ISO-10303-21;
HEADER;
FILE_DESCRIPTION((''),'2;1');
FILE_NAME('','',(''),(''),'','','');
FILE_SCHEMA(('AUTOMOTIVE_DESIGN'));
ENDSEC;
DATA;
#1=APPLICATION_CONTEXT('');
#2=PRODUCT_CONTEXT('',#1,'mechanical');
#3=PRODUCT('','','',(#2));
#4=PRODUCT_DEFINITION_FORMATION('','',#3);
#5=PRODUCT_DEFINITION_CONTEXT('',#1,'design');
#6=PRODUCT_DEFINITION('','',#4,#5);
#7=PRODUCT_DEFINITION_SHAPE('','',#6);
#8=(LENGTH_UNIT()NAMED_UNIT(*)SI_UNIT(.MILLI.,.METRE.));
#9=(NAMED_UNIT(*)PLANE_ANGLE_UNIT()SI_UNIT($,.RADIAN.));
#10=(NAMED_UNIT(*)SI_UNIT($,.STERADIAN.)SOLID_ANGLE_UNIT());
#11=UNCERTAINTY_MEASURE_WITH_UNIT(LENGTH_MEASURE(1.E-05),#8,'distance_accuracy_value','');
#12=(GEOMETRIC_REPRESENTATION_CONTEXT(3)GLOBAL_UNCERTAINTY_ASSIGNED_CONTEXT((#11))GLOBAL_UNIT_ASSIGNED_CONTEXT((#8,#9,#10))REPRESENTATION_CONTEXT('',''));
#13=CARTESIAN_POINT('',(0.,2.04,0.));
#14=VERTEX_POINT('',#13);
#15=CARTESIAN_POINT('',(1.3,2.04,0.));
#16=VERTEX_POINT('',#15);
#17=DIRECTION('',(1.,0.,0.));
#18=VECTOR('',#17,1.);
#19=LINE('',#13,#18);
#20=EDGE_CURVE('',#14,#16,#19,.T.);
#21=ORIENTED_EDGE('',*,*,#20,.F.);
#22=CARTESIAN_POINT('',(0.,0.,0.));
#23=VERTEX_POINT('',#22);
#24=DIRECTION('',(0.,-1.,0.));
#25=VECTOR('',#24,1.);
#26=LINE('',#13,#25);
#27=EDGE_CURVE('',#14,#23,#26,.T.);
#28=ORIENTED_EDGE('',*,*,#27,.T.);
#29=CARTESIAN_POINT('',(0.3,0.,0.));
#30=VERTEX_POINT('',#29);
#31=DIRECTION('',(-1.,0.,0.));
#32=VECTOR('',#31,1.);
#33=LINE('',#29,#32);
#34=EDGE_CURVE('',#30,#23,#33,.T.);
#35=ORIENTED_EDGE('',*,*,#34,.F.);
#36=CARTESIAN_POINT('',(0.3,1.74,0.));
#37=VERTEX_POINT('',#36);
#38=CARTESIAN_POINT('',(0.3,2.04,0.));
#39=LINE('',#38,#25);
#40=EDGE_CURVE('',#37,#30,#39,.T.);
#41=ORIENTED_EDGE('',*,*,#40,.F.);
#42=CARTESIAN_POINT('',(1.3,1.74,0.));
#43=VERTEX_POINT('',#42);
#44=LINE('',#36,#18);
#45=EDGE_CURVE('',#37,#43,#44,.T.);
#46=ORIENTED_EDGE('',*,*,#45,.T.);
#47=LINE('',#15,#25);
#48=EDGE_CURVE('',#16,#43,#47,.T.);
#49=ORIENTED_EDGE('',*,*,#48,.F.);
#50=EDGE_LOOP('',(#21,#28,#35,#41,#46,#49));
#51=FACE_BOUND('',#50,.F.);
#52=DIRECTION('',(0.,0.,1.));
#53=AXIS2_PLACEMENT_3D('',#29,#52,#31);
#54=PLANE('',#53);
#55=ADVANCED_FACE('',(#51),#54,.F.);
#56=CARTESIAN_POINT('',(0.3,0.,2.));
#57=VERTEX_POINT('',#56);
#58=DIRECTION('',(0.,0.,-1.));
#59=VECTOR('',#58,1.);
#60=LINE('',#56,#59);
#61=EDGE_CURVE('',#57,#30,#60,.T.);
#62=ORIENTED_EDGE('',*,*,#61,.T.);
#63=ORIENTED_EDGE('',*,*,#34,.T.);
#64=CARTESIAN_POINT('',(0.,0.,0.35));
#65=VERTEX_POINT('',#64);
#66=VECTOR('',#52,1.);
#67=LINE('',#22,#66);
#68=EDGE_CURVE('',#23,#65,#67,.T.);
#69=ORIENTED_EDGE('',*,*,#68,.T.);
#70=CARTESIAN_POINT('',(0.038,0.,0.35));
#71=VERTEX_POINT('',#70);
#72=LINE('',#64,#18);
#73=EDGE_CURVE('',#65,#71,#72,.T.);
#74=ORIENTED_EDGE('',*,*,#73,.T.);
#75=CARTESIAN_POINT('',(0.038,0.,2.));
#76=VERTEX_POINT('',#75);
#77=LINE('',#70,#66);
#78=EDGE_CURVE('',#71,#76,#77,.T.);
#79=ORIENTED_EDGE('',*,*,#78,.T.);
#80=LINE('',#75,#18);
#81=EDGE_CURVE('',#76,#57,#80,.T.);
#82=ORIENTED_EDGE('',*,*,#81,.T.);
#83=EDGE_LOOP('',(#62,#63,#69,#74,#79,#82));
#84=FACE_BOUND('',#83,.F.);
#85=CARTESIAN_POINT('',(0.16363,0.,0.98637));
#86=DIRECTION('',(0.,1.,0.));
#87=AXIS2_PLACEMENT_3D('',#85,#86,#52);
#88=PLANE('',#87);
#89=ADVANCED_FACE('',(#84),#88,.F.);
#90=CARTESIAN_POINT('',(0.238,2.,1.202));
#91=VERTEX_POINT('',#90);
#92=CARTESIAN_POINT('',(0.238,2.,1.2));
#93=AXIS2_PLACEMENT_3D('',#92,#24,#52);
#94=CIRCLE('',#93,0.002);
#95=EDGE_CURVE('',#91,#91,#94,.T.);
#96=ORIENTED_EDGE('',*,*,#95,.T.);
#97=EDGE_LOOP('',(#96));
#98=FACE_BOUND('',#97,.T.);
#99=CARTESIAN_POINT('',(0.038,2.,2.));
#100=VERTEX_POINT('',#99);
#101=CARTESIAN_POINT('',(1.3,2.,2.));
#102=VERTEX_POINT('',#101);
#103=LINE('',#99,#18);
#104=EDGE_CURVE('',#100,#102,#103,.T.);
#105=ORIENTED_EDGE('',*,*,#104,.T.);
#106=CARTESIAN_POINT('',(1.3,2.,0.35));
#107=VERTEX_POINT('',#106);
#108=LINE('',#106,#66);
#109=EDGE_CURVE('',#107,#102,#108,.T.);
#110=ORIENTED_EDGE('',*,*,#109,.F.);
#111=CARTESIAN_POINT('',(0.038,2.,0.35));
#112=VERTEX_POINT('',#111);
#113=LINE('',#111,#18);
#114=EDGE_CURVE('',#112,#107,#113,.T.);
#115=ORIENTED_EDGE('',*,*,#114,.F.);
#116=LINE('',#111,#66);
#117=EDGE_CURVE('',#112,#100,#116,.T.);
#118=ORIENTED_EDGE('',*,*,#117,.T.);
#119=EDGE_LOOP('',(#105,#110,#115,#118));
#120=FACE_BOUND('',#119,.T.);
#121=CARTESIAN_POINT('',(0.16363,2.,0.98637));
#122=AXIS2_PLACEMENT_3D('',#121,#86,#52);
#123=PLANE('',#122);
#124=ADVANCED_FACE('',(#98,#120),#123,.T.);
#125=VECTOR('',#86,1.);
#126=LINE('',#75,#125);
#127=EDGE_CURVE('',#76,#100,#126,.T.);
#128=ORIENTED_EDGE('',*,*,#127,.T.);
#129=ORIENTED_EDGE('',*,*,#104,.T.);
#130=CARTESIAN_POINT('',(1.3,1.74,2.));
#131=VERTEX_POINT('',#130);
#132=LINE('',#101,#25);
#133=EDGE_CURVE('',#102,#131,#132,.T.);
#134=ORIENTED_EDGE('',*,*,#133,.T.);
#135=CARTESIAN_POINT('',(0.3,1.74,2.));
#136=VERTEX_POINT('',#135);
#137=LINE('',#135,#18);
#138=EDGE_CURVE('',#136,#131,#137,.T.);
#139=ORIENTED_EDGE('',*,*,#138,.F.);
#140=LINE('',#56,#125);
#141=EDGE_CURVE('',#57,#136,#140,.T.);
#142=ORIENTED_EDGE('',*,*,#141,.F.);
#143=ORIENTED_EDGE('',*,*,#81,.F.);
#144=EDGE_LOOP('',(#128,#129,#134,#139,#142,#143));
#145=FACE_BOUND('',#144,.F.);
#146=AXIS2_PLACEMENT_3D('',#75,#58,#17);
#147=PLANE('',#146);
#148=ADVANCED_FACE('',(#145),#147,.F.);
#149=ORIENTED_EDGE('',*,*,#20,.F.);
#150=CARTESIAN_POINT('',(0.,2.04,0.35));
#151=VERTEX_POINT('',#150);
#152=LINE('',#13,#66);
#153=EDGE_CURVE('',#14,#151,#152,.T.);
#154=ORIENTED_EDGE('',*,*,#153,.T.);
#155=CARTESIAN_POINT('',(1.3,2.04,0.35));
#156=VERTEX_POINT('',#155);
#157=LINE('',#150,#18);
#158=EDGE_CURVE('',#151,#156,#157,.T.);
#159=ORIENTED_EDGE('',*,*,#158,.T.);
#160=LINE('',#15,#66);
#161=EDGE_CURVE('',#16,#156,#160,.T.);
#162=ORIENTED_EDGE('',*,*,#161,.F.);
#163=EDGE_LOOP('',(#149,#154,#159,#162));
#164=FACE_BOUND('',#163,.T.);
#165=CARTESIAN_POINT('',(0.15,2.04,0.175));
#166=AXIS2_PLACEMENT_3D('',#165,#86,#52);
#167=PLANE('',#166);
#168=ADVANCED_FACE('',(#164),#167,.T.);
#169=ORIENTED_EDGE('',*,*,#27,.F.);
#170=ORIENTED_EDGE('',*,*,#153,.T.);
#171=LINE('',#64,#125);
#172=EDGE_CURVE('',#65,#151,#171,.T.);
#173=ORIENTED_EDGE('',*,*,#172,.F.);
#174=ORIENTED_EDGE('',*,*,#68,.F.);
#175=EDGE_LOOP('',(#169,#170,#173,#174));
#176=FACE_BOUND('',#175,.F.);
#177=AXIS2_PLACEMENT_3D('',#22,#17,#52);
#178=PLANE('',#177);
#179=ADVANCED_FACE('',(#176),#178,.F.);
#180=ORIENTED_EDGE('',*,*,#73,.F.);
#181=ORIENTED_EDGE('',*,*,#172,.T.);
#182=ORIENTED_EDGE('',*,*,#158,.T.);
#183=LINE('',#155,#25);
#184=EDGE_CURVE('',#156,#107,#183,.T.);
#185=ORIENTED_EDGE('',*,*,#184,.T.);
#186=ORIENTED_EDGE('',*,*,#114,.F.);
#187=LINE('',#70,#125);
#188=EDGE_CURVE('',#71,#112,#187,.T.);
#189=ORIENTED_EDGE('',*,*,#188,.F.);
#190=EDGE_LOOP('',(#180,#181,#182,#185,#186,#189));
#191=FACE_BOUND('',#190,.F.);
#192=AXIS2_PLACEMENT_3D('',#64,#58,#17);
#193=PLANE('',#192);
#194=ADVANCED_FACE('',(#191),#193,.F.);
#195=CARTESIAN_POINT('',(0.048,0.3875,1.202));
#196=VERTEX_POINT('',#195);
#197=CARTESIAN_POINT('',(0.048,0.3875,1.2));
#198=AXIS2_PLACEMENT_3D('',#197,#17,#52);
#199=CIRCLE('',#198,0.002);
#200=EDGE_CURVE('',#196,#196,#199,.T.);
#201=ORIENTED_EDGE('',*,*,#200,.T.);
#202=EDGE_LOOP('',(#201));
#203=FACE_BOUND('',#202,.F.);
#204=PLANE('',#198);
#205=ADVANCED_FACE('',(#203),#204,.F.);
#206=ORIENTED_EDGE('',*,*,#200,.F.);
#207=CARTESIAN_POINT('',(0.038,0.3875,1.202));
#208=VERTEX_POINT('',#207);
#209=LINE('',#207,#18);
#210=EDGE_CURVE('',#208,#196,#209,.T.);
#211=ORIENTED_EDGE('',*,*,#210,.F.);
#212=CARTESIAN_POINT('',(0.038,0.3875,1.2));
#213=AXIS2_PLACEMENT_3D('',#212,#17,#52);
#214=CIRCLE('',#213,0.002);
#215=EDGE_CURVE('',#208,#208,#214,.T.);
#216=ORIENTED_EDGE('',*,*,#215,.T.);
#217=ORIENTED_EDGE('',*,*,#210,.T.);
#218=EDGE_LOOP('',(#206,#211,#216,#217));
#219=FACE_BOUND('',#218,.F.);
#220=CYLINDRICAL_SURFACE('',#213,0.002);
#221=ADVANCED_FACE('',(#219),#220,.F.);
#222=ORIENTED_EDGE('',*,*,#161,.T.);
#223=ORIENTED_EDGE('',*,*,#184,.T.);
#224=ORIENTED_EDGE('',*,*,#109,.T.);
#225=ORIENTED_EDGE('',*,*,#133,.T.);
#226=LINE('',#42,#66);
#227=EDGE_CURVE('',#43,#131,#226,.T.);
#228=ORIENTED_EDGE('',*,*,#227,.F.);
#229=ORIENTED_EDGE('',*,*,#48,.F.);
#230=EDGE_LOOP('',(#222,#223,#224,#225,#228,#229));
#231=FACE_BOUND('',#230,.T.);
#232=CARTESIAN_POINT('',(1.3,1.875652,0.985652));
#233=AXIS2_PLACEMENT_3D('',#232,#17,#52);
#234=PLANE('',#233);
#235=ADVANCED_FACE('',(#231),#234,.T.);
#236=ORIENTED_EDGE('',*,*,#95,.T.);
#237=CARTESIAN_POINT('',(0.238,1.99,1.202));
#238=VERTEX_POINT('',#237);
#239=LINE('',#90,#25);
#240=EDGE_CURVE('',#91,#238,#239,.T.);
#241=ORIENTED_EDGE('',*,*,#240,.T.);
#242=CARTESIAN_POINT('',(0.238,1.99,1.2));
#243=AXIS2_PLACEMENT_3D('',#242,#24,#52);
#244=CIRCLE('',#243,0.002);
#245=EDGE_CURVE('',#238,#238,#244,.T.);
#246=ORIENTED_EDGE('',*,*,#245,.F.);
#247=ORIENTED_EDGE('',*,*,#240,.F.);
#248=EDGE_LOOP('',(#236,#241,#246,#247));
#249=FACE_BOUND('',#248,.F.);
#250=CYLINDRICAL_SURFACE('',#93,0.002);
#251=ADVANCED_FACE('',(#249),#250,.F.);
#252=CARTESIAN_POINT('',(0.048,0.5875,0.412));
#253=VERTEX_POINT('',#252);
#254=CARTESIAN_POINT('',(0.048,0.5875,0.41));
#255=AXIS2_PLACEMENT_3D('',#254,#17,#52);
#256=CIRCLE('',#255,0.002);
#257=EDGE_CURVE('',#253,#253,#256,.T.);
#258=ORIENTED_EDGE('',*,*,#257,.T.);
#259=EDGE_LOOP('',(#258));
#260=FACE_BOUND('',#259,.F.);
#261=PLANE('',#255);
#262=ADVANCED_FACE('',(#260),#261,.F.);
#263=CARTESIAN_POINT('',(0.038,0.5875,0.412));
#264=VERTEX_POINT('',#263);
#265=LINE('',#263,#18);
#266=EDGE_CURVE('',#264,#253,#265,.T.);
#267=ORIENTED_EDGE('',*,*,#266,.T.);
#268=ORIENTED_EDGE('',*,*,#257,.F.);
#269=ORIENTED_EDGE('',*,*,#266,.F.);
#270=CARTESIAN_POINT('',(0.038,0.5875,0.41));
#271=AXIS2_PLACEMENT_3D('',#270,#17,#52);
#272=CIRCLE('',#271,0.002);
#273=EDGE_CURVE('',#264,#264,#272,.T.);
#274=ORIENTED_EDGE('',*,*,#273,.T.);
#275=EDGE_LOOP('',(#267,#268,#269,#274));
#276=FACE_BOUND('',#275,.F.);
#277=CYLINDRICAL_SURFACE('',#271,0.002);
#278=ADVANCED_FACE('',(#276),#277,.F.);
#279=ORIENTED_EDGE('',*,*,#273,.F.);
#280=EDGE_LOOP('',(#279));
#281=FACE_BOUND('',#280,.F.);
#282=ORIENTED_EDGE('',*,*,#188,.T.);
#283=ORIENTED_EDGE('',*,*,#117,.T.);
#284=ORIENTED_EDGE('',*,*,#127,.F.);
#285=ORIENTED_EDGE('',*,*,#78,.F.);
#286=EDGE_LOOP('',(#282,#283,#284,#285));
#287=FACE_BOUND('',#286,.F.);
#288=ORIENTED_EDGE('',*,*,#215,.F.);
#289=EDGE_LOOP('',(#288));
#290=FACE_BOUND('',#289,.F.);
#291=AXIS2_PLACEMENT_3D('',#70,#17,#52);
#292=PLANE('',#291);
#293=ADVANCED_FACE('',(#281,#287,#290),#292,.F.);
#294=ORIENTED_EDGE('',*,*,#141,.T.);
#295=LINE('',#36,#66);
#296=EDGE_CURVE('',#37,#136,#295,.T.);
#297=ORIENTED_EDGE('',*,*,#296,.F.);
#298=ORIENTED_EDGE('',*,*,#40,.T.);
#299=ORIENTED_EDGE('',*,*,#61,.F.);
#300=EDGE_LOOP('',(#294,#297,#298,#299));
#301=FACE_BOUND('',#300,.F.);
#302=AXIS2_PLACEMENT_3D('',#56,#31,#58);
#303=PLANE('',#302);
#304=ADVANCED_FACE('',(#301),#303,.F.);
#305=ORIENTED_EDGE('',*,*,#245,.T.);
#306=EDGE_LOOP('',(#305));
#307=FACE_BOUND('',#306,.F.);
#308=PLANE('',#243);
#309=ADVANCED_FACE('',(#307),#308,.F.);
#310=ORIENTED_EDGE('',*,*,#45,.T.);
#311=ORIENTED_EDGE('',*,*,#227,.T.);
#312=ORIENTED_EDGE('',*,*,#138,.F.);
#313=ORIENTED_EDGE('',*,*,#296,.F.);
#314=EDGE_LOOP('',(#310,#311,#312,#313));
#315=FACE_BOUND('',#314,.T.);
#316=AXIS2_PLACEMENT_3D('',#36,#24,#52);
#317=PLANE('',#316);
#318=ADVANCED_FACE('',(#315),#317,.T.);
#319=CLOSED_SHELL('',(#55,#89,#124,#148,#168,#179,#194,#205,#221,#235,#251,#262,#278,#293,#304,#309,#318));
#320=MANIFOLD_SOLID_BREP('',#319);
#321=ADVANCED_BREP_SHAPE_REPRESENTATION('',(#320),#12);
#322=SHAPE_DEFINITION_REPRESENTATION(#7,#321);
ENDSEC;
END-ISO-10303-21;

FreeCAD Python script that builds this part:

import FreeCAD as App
import Part
import Sketcher
from FreeCAD import Vector
Q = App.Units.Quantity


def add_polygon(sketch, points):
    """Adds a closed chain of lines whose ends are joined by coincident constraints."""
    first, n = sketch.GeometryCount, len(points)
    for a, b in zip(points, points[1:] + points[:1]):
        sketch.addGeometry(Part.LineSegment(App.Vector(*a, 0), App.Vector(*b, 0)), False)
    for i in range(n):
        sketch.addConstraint(Sketcher.Constraint("Coincident", first + i, 2, first + (i + 1) % n, 1))

doc = App.newDocument("Part")
params = doc.addObject("Spreadsheet::Sheet", "Params")
for row, (alias, value) in enumerate([
    ("sketch1_width", "0.3 mm"),
    ("sketch1_height", "2 mm"),
    ("sketch1_height2", "0.35 mm"),
    ("pad1_length", "2 mm"),
    ("hole_diameter", "0.004 mm"),
    ("hole_depth", "0.01 mm"),
    ("hole2_diameter", "0.004 mm"),
    ("hole2_depth", "0.01 mm"),
    ("hole3_diameter", "0.004 mm"),
    ("hole3_depth", "0.01 mm"),
    ("sketch5_width", "0.3 mm"),
    ("sketch5_height", "0.35 mm"),
    ("pad2_length", "0.04 mm"),
    ("sketch6_height", "2 mm"),
    ("sketch6_width", "0.3 mm"),
    ("sketch6_width2", "0.04 mm"),
    ("sketch6_height2", "0.35 mm"),
    ("pad3_length", "1 mm"),
], start=1):
    params.set(f"A{row}", alias)
    params.set(f"B{row}", "=" + value)
    params.setAlias(f"B{row}", alias)

body = doc.addObject("PartDesign::Body", "Body")

sketch1 = doc.addObject("Sketcher::SketchObject", "Sketch")
body.addObject(sketch1)
sketch1.AttachmentSupport = (doc.XZ_Plane, [""])
sketch1.MapMode = "FlatFace"
add_polygon(sketch1, [(0, 0.35), (0, 0), (0.3, 0), (0.3, 2), (0.038, 2), (0.038, 0.35)])
sketch1.addConstraint([
    Sketcher.Constraint("Vertical", 0),
    Sketcher.Constraint("Horizontal", 1),
    Sketcher.Constraint("Vertical", 2),
    Sketcher.Constraint("Horizontal", 3),
    Sketcher.Constraint("Vertical", 4),
    Sketcher.Constraint("Horizontal", 5),
    Sketcher.Constraint("Coincident", 0, 2, -1, 1),
    Sketcher.Constraint("DistanceX", 1, 1, 1, 2, Q("0.3 mm")),
    Sketcher.Constraint("DistanceY", 2, 1, 2, 2, Q("2 mm")),
    Sketcher.Constraint("DistanceY", 0, 2, 0, 1, Q("0.35 mm")),
    Sketcher.Constraint("DistanceX", 3, 2, 3, 1, Q("0.262 mm")),
])
sketch1.setExpression("Constraints[13]", "Params.sketch1_width")
sketch1.setExpression("Constraints[14]", "Params.sketch1_height")
sketch1.setExpression("Constraints[15]", "Params.sketch1_height2")
pad1 = doc.addObject("PartDesign::Pad", "Pad")
body.addObject(pad1)
pad1.Profile = sketch1
pad1.setExpression("Length", "Params.pad1_length")
pad1.Reversed = True

sketch2 = doc.addObject("Sketcher::SketchObject", "Sketch001")
body.addObject(sketch2)
sketch2.AttachmentSupport = (doc.YZ_Plane, [""])
sketch2.MapMode = "FlatFace"
sketch2.AttachmentOffset = App.Placement(Vector(0, 0, 0.038), App.Rotation())
sketch2.addGeometry(Part.Circle(Vector(0.5875, 0.41, 0), Vector(0, 0, 1), 0.002), False)
sketch2.addConstraint([
    Sketcher.Constraint("Diameter", 0, Q("0.004 mm")),
    Sketcher.Constraint("DistanceY", -1, 1, 0, 3, Q("0.41 mm")),
    Sketcher.Constraint("DistanceX", -1, 1, 0, 3, Q("0.5875 mm")),
])
doc.recompute()
hole = doc.addObject("PartDesign::Hole", "Hole")
body.addObject(hole)
hole.Profile = sketch2
hole.ThreadType = "None"
hole.setExpression("Diameter", "Params.hole_diameter")
hole.DepthType = "Dimension"
hole.setExpression("Depth", "Params.hole_depth")
hole.DrillPoint = "Flat"
hole.Reversed = True

sketch3 = doc.addObject("Sketcher::SketchObject", "Sketch002")
body.addObject(sketch3)
sketch3.AttachmentSupport = (doc.YZ_Plane, [""])
sketch3.MapMode = "FlatFace"
sketch3.AttachmentOffset = App.Placement(Vector(0, 0, 0.038), App.Rotation())
sketch3.addGeometry(Part.Circle(Vector(0.3875, 1.2, 0), Vector(0, 0, 1), 0.002), False)
sketch3.addConstraint([
    Sketcher.Constraint("Diameter", 0, Q("0.004 mm")),
    Sketcher.Constraint("DistanceY", -1, 1, 0, 3, Q("1.2 mm")),
    Sketcher.Constraint("DistanceX", -1, 1, 0, 3, Q("0.3875 mm")),
])
doc.recompute()
hole2 = doc.addObject("PartDesign::Hole", "Hole001")
body.addObject(hole2)
hole2.Profile = sketch3
hole2.ThreadType = "None"
hole2.setExpression("Diameter", "Params.hole2_diameter")
hole2.DepthType = "Dimension"
hole2.setExpression("Depth", "Params.hole2_depth")
hole2.DrillPoint = "Flat"
hole2.Reversed = True

sketch4 = doc.addObject("Sketcher::SketchObject", "Sketch003")
body.addObject(sketch4)
sketch4.AttachmentSupport = (doc.XZ_Plane, [""])
sketch4.MapMode = "FlatFace"
sketch4.AttachmentOffset = App.Placement(Vector(0, 0, -2), App.Rotation())
sketch4.addGeometry(Part.Circle(Vector(0.238, 1.2, 0), Vector(0, 0, 1), 0.002), False)
sketch4.addConstraint([
    Sketcher.Constraint("Diameter", 0, Q("0.004 mm")),
    Sketcher.Constraint("DistanceY", -1, 1, 0, 3, Q("1.2 mm")),
    Sketcher.Constraint("DistanceX", -1, 1, 0, 3, Q("0.238 mm")),
])
doc.recompute()
hole3 = doc.addObject("PartDesign::Hole", "Hole002")
body.addObject(hole3)
hole3.Profile = sketch4
hole3.ThreadType = "None"
hole3.setExpression("Diameter", "Params.hole3_diameter")
hole3.DepthType = "Dimension"
hole3.setExpression("Depth", "Params.hole3_depth")
hole3.DrillPoint = "Flat"
hole3.Reversed = True

sketch5 = doc.addObject("Sketcher::SketchObject", "Sketch004")
body.addObject(sketch5)
sketch5.AttachmentSupport = (doc.XZ_Plane, [""])
sketch5.MapMode = "FlatFace"
sketch5.AttachmentOffset = App.Placement(Vector(0, 0, -2), App.Rotation())
add_polygon(sketch5, [(0.3, 0.35), (0.3, 0), (0, 0), (0, 0.35)])
sketch5.addConstraint([
    Sketcher.Constraint("Vertical", 0),
    Sketcher.Constraint("Horizontal", 1),
    Sketcher.Constraint("Vertical", 2),
    Sketcher.Constraint("Horizontal", 3),
    Sketcher.Constraint("Coincident", 1, 2, -1, 1),
    Sketcher.Constraint("DistanceX", 1, 2, 1, 1, Q("0.3 mm")),
    Sketcher.Constraint("DistanceY", 0, 2, 0, 1, Q("0.35 mm")),
])
sketch5.setExpression("Constraints[9]", "Params.sketch5_width")
sketch5.setExpression("Constraints[10]", "Params.sketch5_height")
pad2 = doc.addObject("PartDesign::Pad", "Pad001")
body.addObject(pad2)
pad2.Profile = sketch5
pad2.setExpression("Length", "Params.pad2_length")
pad2.Reversed = True

sketch6 = doc.addObject("Sketcher::SketchObject", "Sketch005")
body.addObject(sketch6)
sketch6.AttachmentSupport = (doc.YZ_Plane, [""])
sketch6.MapMode = "FlatFace"
sketch6.AttachmentOffset = App.Placement(Vector(0, 0, 0.3), App.Rotation())
add_polygon(sketch6, [(1.74, 0), (2.04, 0), (2.04, 0.35), (2, 0.35), (2, 2), (1.74, 2)])
sketch6.addConstraint([
    Sketcher.Constraint("Horizontal", 0),
    Sketcher.Constraint("Vertical", 1),
    Sketcher.Constraint("Horizontal", 2),
    Sketcher.Constraint("Vertical", 3),
    Sketcher.Constraint("Horizontal", 4),
    Sketcher.Constraint("Vertical", 5),
    Sketcher.Constraint("PointOnObject", 0, 2, -1),
    Sketcher.Constraint("DistanceY", 5, 2, 5, 1, Q("2 mm")),
    Sketcher.Constraint("DistanceX", 0, 1, 0, 2, Q("0.3 mm")),
    Sketcher.Constraint("DistanceX", -1, 1, 2, 2, Q("2 mm")),
    Sketcher.Constraint("DistanceX", 2, 2, 2, 1, Q("0.04 mm")),
    Sketcher.Constraint("DistanceY", 1, 1, 1, 2, Q("0.35 mm")),
])
sketch6.setExpression("Constraints[13]", "Params.sketch6_height")
sketch6.setExpression("Constraints[14]", "Params.sketch6_width")
sketch6.setExpression("Constraints[16]", "Params.sketch6_width2")
sketch6.setExpression("Constraints[17]", "Params.sketch6_height2")
pad3 = doc.addObject("PartDesign::Pad", "Pad002")
body.addObject(pad3)
pad3.Profile = sketch6
pad3.setExpression("Length", "Params.pad3_length")

doc.recompute()
